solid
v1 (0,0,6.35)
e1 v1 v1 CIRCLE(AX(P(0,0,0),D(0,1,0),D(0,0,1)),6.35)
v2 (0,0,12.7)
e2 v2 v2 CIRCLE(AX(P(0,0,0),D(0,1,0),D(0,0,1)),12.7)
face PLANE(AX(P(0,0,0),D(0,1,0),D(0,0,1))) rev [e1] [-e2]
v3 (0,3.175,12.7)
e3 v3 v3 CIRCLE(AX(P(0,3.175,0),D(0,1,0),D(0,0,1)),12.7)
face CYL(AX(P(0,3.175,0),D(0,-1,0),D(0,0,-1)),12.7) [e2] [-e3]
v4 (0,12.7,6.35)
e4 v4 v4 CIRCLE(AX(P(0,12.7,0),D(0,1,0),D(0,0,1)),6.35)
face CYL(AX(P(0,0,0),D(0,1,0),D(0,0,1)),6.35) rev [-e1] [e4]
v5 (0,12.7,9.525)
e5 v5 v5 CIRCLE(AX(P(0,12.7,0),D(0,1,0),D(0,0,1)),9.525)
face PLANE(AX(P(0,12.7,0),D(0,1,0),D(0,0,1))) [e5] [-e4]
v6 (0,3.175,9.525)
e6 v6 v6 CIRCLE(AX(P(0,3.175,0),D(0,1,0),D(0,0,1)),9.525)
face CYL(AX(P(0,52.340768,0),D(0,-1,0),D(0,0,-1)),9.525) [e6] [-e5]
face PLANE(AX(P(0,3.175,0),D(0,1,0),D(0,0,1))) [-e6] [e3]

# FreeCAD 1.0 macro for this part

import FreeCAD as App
import Part
import Sketcher
Q = App.Units.Quantity

doc = App.newDocument("Part")
params = doc.addObject("Spreadsheet::Sheet", "Params")
for row, (alias, value) in enumerate([
    ("sketch1_diameter", "1 in"),
    ("pad1_length", "0.125 in"),
    ("sketch2_diameter", "0.75 in"),
    ("pad2_length", "0.375 in"),
    ("sketch3_diameter", "0.5 in"),
], start=1):
    params.set(f"A{row}", alias)
    params.set(f"B{row}", "=" + value)
    params.setAlias(f"B{row}", alias)

body = doc.addObject("PartDesign::Body", "Body")

# Sketch on XZ plane
sketch1 = doc.addObject("Sketcher::SketchObject", "Sketch")
body.addObject(sketch1)
sketch1.AttachmentSupport = (doc.XZ_Plane, [""])
sketch1.MapMode = "FlatFace"
sketch1.addGeometry(Part.Circle(App.Vector(0, 0, 0), App.Vector(0, 0, 1), 13), False)
sketch1.addConstraint(Sketcher.Constraint("Coincident", 0, 3, -1, 1))
sketch1.addConstraint(Sketcher.Constraint("Diameter", 0, Q("1 in")))
sketch1.setExpression("Constraints[1]", "Params.sketch1_diameter")
pad1 = doc.addObject("PartDesign::Pad", "Pad")
body.addObject(pad1)
pad1.Profile = sketch1
pad1.setExpression("Length", "Params.pad1_length")
pad1.Reversed = True

# Sketch on XZ plane
sketch2 = doc.addObject("Sketcher::SketchObject", "Sketch001")
body.addObject(sketch2)
sketch2.AttachmentSupport = (doc.XZ_Plane, [""])
sketch2.MapMode = "FlatFace"
sketch2.AttachmentOffset = App.Placement(App.Vector(0, 0, -0.125 * 25.4), App.Rotation())
sketch2.addGeometry(Part.Circle(App.Vector(0, 0, 0), App.Vector(0, 0, 1), 10), False)
sketch2.addConstraint(Sketcher.Constraint("Coincident", 0, 3, -1, 1))
sketch2.addConstraint(Sketcher.Constraint("Diameter", 0, Q("0.75 in")))
sketch2.setExpression("Constraints[1]", "Params.sketch2_diameter")
pad2 = doc.addObject("PartDesign::Pad", "Pad001")
body.addObject(pad2)
pad2.Profile = sketch2
pad2.setExpression("Length", "Params.pad2_length")
pad2.Reversed = True

# Sketch on XZ plane
sketch3 = doc.addObject("Sketcher::SketchObject", "Sketch002")
body.addObject(sketch3)
sketch3.AttachmentSupport = (doc.XZ_Plane, [""])
sketch3.MapMode = "FlatFace"
sketch3.AttachmentOffset = App.Placement(App.Vector(0, 0, -0.5 * 25.4), App.Rotation())
sketch3.addGeometry(Part.Circle(App.Vector(0, 0, 0), App.Vector(0, 0, 1), 6), False)
sketch3.addConstraint(Sketcher.Constraint("Coincident", 0, 3, -1, 1))
sketch3.addConstraint(Sketcher.Constraint("Diameter", 0, Q("0.5 in")))
sketch3.setExpression("Constraints[1]", "Params.sketch3_diameter")
pocket1 = doc.addObject("PartDesign::Pocket", "Pocket")
body.addObject(pocket1)
pocket1.Profile = sketch3
pocket1.Type = "ThroughAll"
pocket1.Reversed = True

doc.recompute()
